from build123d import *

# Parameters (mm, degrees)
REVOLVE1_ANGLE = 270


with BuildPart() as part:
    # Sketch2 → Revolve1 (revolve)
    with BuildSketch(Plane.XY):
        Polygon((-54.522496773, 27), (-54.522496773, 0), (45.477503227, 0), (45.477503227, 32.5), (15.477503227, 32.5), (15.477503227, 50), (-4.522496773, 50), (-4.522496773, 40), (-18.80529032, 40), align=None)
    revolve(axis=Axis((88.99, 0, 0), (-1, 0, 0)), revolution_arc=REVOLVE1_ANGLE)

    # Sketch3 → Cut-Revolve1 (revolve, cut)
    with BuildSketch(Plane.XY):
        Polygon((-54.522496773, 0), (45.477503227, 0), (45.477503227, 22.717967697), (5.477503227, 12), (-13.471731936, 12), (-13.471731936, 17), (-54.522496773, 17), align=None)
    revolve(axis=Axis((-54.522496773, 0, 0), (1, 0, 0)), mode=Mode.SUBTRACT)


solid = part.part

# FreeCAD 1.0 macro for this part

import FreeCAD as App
import Part
import Sketcher

V = App.Vector
Q = App.Units.Quantity

doc = App.newDocument("Part")
params = doc.addObject("Spreadsheet::Sheet", "Params")
for row, (alias, value) in enumerate([
    ("sketch1_width", "100 mm"),
    ("sketch1_width2", "30 mm"),
    ("sketch1_width3", "20 mm"),
    ("sketch1_height", "27 mm"),
    ("sketch1_height2", "10 mm"),
    ("revolution_angle", "270 deg"),
    ("sketch2_width", "100 mm"),
    ("sketch2_height", "5 mm"),
    ("sketch2_height2", "17 mm"),
    ("groove_angle", "360 deg"),
], start=1):
    params.set(f"A{row}", alias)
    params.set(f"B{row}", "=" + value)
    params.setAlias(f"B{row}", alias)

body = doc.addObject("PartDesign::Body", "Body")

sketch1 = doc.addObject("Sketcher::SketchObject", "Sketch")
body.addObject(sketch1)
sketch1.AttachmentSupport = (doc.XY_Plane, [""])
sketch1.MapMode = "FlatFace"
sketch1.addGeometry([
    Part.LineSegment(V(-55, 27, 0), V(-55, 0, 0)),
    Part.LineSegment(V(-55, 0, 0), V(45, 0, 0)),
    Part.LineSegment(V(45, 0, 0), V(45, 32, 0)),
    Part.LineSegment(V(45, 32, 0), V(15, 32, 0)),
    Part.LineSegment(V(15, 32, 0), V(15, 50, 0)),
    Part.LineSegment(V(15, 50, 0), V(-5, 50, 0)),
    Part.LineSegment(V(-5, 50, 0), V(-5, 40, 0)),
    Part.LineSegment(V(-5, 40, 0), V(-19, 40, 0)),
    Part.LineSegment(V(-19, 40, 0), V(-55, 27, 0)),
], False)
sketch1.addConstraint([
    Sketcher.Constraint("Coincident", 0, 2, 1, 1),
    Sketcher.Constraint("Coincident", 1, 2, 2, 1),
    Sketcher.Constraint("Coincident", 2, 2, 3, 1),
    Sketcher.Constraint("Coincident", 3, 2, 4, 1),
    Sketcher.Constraint("Coincident", 4, 2, 5, 1),
    Sketcher.Constraint("Coincident", 5, 2, 6, 1),
    Sketcher.Constraint("Coincident", 6, 2, 7, 1),
    Sketcher.Constraint("Coincident", 7, 2, 8, 1),
    Sketcher.Constraint("Coincident", 8, 2, 0, 1),
    Sketcher.Constraint("Vertical", 0),
    Sketcher.Constraint("Horizontal", 1),
    Sketcher.Constraint("Vertical", 2),
    Sketcher.Constraint("Horizontal", 3),
    Sketcher.Constraint("Vertical", 4),
    Sketcher.Constraint("Horizontal", 5),
    Sketcher.Constraint("Vertical", 6),
    Sketcher.Constraint("Horizontal", 7),
    Sketcher.Constraint("PointOnObject", 0, 2, -1),
    Sketcher.Constraint("DistanceX", 1, 1, 1, 2, Q("100 mm")),
    Sketcher.Constraint("DistanceX", 3, 2, 3, 1, Q("30 mm")),
    Sketcher.Constraint("DistanceX", 5, 2, 5, 1, Q("20 mm")),
    Sketcher.Constraint("DistanceY", 0, 2, 0, 1, Q("27 mm")),
    Sketcher.Constraint("DistanceY", 6, 2, 6, 1, Q("10 mm")),
    Sketcher.Constraint("Angle", 8, Q("-160 deg")),
    Sketcher.Constraint("DistanceY", 2, 1, 2, 2, Q("32.5 mm")),
    Sketcher.Constraint("DistanceY", 4, 1, 4, 2, Q("17.5 mm")),
    Sketcher.Constraint("DistanceX", 7, 2, -1, 1, Q("18.80529 mm")),
])
sketch1.setExpression("Constraints[18]", "Params.sketch1_width")
sketch1.setExpression("Constraints[19]", "Params.sketch1_width2")
sketch1.setExpression("Constraints[20]", "Params.sketch1_width3")
sketch1.setExpression("Constraints[21]", "Params.sketch1_height")
sketch1.setExpression("Constraints[22]", "Params.sketch1_height2")
revolution = doc.addObject("PartDesign::Revolution", "Revolution")
body.addObject(revolution)
revolution.Profile = sketch1
revolution.ReferenceAxis = (sketch1, ["H_Axis"])
revolution.setExpression("Angle", "Params.revolution_angle")
revolution.Reversed = True

sketch2 = doc.addObject("Sketcher::SketchObject", "Sketch001")
body.addObject(sketch2)
sketch2.AttachmentSupport = (doc.XY_Plane, [""])
sketch2.MapMode = "FlatFace"
sketch2.addGeometry([
    Part.LineSegment(V(-55, 0, 0), V(45, 0, 0)),
    Part.LineSegment(V(45, 0, 0), V(45, 23, 0)),
    Part.LineSegment(V(45, 23, 0), V(5, 12, 0)),
    Part.LineSegment(V(5, 12, 0), V(-13, 12, 0)),
    Part.LineSegment(V(-13, 12, 0), V(-13, 17, 0)),
    Part.LineSegment(V(-13, 17, 0), V(-55, 17, 0)),
    Part.LineSegment(V(-55, 17, 0), V(-55, 0, 0)),
], False)
sketch2.addConstraint([
    Sketcher.Constraint("Coincident", 0, 2, 1, 1),
    Sketcher.Constraint("Coincident", 1, 2, 2, 1),
    Sketcher.Constraint("Coincident", 2, 2, 3, 1),
    Sketcher.Constraint("Coincident", 3, 2, 4, 1),
    Sketcher.Constraint("Coincident", 4, 2, 5, 1),
    Sketcher.Constraint("Coincident", 5, 2, 6, 1),
    Sketcher.Constraint("Coincident", 6, 2, 0, 1),
    Sketcher.Constraint("Horizontal", 0),
    Sketcher.Constraint("Vertical", 1),
    Sketcher.Constraint("Horizontal", 3),
    Sketcher.Constraint("Vertical", 4),
    Sketcher.Constraint("Horizontal", 5),
    Sketcher.Constraint("Vertical", 6),
    Sketcher.Constraint("PointOnObject", 0, 2, -1),
    Sketcher.Constraint("DistanceX", 0, 1, 0, 2, Q("100 mm")),
    Sketcher.Constraint("DistanceY", 4, 1, 4, 2, Q("5 mm")),
    Sketcher.Constraint("DistanceY", 6, 2, 6, 1, Q("17 mm")),
    Sketcher.Constraint("Angle", 2, Q("-165 deg")),
    Sketcher.Constraint("DistanceX", 2, 2, 1, 2, Q("40 mm")),
    Sketcher.Constraint("DistanceX", 3, 2, 3, 1, Q("18.949235 mm")),
    Sketcher.Constraint("DistanceX", 3, 2, -1, 1, Q("13.471732 mm")),
])
sketch2.setExpression("Constraints[14]", "Params.sketch2_width")
sketch2.setExpression("Constraints[15]", "Params.sketch2_height")
sketch2.setExpression("Constraints[16]", "Params.sketch2_height2")
groove = doc.addObject("PartDesign::Groove", "Groove")
body.addObject(groove)
groove.Profile = sketch2
groove.ReferenceAxis = (sketch2, ["H_Axis"])
groove.setExpression("Angle", "Params.groove_angle")

doc.recompute()
